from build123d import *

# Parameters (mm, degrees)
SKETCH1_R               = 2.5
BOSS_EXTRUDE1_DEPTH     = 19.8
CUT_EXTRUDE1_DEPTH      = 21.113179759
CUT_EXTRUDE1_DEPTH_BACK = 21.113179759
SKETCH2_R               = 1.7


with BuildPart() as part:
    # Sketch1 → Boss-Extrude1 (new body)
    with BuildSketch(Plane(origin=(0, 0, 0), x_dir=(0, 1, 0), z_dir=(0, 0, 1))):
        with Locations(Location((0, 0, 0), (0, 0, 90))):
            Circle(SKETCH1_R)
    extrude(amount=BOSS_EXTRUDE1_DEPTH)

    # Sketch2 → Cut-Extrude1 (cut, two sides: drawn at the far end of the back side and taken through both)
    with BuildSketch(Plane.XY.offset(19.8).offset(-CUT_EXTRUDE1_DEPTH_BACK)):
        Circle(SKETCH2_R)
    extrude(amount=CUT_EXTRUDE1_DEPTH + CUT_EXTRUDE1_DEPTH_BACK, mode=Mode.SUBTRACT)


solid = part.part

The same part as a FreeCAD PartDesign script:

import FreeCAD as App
import Part
import Sketcher
from FreeCAD import Vector

doc = App.newDocument("Part")
params = doc.addObject("Spreadsheet::Sheet", "Params")
for row, (alias, value) in enumerate([
    ("sketch1_diameter", "5 mm"),
    ("pad1_length", "19.8 mm"),
    ("sketch2_diameter", "3.4 mm"),
], start=1):
    params.set(f"A{row}", alias)
    params.set(f"B{row}", "=" + value)
    params.setAlias(f"B{row}", alias)

body = doc.addObject("PartDesign::Body", "Body")

sketch1 = body.newObject("Sketcher::SketchObject", "Sketch")
sketch1.AttachmentSupport = (doc.getObject("XY_Plane"), [""])
sketch1.MapMode = "FlatFace"
sketch1.addGeometry(Part.Circle(Vector(0, 0, 0), Vector(0, 0, 1), 2.5), False)
sketch1.addConstraint([
    Sketcher.Constraint("Coincident", 0, 3, -1, 1),
    Sketcher.Constraint("Diameter", 0, 5.0),
])
sketch1.setExpression("Constraints[1]", "Params.sketch1_diameter")
pad1 = body.newObject("PartDesign::Pad", "Pad")
pad1.Profile = sketch1
pad1.setExpression("Length", "Params.pad1_length")

sketch2 = body.newObject("Sketcher::SketchObject", "Sketch001")
sketch2.AttachmentSupport = (doc.getObject("XY_Plane"), [""])
sketch2.MapMode = "FlatFace"
sketch2.AttachmentOffset = App.Placement(Vector(0, 0, 19.8), App.Rotation())
sketch2.addGeometry(Part.Circle(Vector(0, 0, 0), Vector(0, 0, 1), 1.7), False)
sketch2.addConstraint([
    Sketcher.Constraint("Coincident", 0, 3, -1, 1),
    Sketcher.Constraint("Diameter", 0, 3.4),
])
sketch2.setExpression("Constraints[1]", "Params.sketch2_diameter")
pocket1 = body.newObject("PartDesign::Pocket", "Pocket")
pocket1.Profile = sketch2
pocket1.Type = "ThroughAll"
pocket1.Midplane = True

doc.recompute()
